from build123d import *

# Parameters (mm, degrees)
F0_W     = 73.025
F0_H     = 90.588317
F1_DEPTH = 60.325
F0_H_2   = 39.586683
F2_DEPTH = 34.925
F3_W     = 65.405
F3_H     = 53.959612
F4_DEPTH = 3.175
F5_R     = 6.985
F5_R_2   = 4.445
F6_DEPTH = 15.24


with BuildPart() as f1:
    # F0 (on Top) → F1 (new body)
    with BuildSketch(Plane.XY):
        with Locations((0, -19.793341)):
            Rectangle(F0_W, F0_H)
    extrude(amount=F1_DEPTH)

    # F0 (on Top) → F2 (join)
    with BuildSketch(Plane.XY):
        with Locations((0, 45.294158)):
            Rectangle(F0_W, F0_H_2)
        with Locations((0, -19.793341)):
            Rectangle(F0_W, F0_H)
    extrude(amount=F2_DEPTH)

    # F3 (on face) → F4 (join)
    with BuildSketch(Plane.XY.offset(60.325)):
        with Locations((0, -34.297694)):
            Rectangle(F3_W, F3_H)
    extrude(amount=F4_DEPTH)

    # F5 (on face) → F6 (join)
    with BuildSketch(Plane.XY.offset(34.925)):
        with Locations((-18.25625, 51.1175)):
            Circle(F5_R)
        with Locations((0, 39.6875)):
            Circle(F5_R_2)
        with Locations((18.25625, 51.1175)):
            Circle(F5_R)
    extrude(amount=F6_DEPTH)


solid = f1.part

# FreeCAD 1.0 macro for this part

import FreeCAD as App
import Part
import Sketcher
Q = App.Units.Quantity


def add_polygon(sketch, points):
    """Adds a closed chain of lines whose ends are joined by coincident constraints."""
    first, n = sketch.GeometryCount, len(points)
    for a, b in zip(points, points[1:] + points[:1]):
        sketch.addGeometry(Part.LineSegment(App.Vector(*a, 0), App.Vector(*b, 0)), False)
    for i in range(n):
        sketch.addConstraint(Sketcher.Constraint("Coincident", first + i, 2, first + (i + 1) % n, 1))

doc = App.newDocument("Part")
body = doc.addObject("PartDesign::Body", "Body")

# Sketch on XY plane
sketch1 = body.newObject("Sketcher::SketchObject", "Sketch")
sketch1.AttachmentSupport = (doc.getObject("XY_Plane"), [""])
sketch1.MapMode = "FlatFace"
add_polygon(sketch1, [(-37, 26), (-37, -65), (37, -65), (37, 26)])  # lines 0-3
sketch1.addConstraint([
    Sketcher.Constraint("Vertical", 0),
    Sketcher.Constraint("Horizontal", 1),
    Sketcher.Constraint("Vertical", 2),
    Sketcher.Constraint("Horizontal", 3),
    Sketcher.Constraint("DistanceX", 1, 1, 1, 2, Q("2.875 in")),
    Sketcher.Constraint("DistanceX", 0, 2, -1, 1, Q("1.4375 in")),
    Sketcher.Constraint("DistanceY", 0, 2, -1, 1, Q("2.5625 in")),
    Sketcher.Constraint("DistanceY", 0, 2, 0, 1, Q("90.588317 mm")),
])
pad1 = body.newObject("PartDesign::Pad", "Pad")
pad1.Profile = sketch1
pad1.Length = Q("2.375 in")

# Sketch on XY plane
sketch2 = body.newObject("Sketcher::SketchObject", "Sketch001")
sketch2.AttachmentSupport = (doc.getObject("XY_Plane"), [""])
sketch2.MapMode = "FlatFace"
add_polygon(sketch2, [(-37, -65), (37, -65), (37, 65), (-37, 65)])  # lines 0-3
sketch2.addConstraint([
    Sketcher.Constraint("Horizontal", 0),
    Sketcher.Constraint("Vertical", 1),
    Sketcher.Constraint("Horizontal", 2),
    Sketcher.Constraint("Vertical", 3),
    Sketcher.Constraint("Symmetric", 0, 2, 2, 2, -1, 1),
    Sketcher.Constraint("DistanceX", 0, 1, 0, 2, Q("2.875 in")),
    Sketcher.Constraint("DistanceY", 1, 1, 1, 2, Q("5.125 in")),
])
pad2 = body.newObject("PartDesign::Pad", "Pad001")
pad2.Profile = sketch2
pad2.Length = Q("1.375 in")

# Sketch on XY plane
sketch3 = body.newObject("Sketcher::SketchObject", "Sketch002")
sketch3.AttachmentSupport = (doc.getObject("XY_Plane"), [""])
sketch3.MapMode = "FlatFace"
sketch3.AttachmentOffset = App.Placement(App.Vector(0, 0, 2.375 * 25.4), App.Rotation())
add_polygon(sketch3, [(-33, -7), (-33, -61), (33, -61), (33, -7)])  # lines 0-3
sketch3.addConstraint([
    Sketcher.Constraint("Vertical", 0),
    Sketcher.Constraint("Horizontal", 1),
    Sketcher.Constraint("Vertical", 2),
    Sketcher.Constraint("Horizontal", 3),
    Sketcher.Constraint("DistanceX", 1, 1, 1, 2, Q("2.575 in")),
    Sketcher.Constraint("DistanceX", 0, 2, -1, 1, Q("1.2875 in")),
    Sketcher.Constraint("DistanceY", 0, 2, -1, 1, Q("2.4125 in")),
    Sketcher.Constraint("DistanceY", 0, 2, 0, 1, Q("53.959612 mm")),
])
pad3 = body.newObject("PartDesign::Pad", "Pad002")
pad3.Profile = sketch3
pad3.Length = Q("0.125 in")

# Sketch on XY plane
sketch4 = body.newObject("Sketcher::SketchObject", "Sketch003")
sketch4.AttachmentSupport = (doc.getObject("XY_Plane"), [""])
sketch4.MapMode = "FlatFace"
sketch4.AttachmentOffset = App.Placement(App.Vector(0, 0, 1.375 * 25.4), App.Rotation())
sketch4.addGeometry([
    Part.Circle(App.Vector(-18.3, 51.1, 0), App.Vector(0, 0, 1), 7),
    Part.Circle(App.Vector(0, 39.7, 0), App.Vector(0, 0, 1), 4.4),
    Part.Circle(App.Vector(18.3, 51.1, 0), App.Vector(0, 0, 1), 7),
], False)
sketch4.addConstraint([
    Sketcher.Constraint("Equal", 0, 2),
    Sketcher.Constraint("Symmetric", 0, 3, 2, 3, -2),
    Sketcher.Constraint("PointOnObject", 1, 3, -2),
    Sketcher.Constraint("Diameter", 0, Q("0.55 in")),
    Sketcher.Constraint("Diameter", 1, Q("0.35 in")),
    Sketcher.Constraint("DistanceY", 1, 3, 0, 3, Q("0.45 in")),
    Sketcher.Constraint("DistanceX", 0, 3, -1, 1, Q("0.71875 in")),
    Sketcher.Constraint("DistanceY", -1, 1, 1, 3, Q("1.5625 in")),
])
pad4 = body.newObject("PartDesign::Pad", "Pad003")
pad4.Profile = sketch4
pad4.Length = Q("0.6 in")

doc.recompute()
